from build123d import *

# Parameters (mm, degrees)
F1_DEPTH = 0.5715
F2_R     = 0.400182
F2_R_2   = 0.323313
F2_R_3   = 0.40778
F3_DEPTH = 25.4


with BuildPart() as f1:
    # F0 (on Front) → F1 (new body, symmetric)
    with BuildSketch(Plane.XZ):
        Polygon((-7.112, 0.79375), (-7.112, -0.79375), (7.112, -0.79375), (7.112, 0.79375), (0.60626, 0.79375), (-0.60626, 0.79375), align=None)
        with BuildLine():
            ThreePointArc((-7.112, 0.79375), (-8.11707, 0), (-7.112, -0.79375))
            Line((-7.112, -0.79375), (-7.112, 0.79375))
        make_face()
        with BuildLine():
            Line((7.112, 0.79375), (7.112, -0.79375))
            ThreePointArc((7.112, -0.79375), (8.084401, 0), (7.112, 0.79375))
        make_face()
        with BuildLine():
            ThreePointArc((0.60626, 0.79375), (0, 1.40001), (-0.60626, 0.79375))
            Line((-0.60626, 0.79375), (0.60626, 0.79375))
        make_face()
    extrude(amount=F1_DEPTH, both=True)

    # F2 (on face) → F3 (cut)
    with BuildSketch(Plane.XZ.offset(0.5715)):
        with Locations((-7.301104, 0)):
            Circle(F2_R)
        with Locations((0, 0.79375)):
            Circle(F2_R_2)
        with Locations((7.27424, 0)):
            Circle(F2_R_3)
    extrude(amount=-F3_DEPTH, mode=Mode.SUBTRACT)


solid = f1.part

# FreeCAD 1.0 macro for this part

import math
import FreeCAD as App
import Part
import Sketcher

V = App.Vector
Q = App.Units.Quantity

doc = App.newDocument("Part")
body = doc.addObject("PartDesign::Body", "Body")

sketch1 = body.newObject("Sketcher::SketchObject", "Sketch")
sketch1.AttachmentSupport = (doc.getObject("XZ_Plane"), [""])
sketch1.MapMode = "FlatFace"
sketch1.addGeometry([
    Part.LineSegment(V(-7.1, -0.8, 0), V(7.1, -0.8, 0)),
    Part.ArcOfCircle(Part.Circle(V(7.3, 0, 0), V(0, 0, 1), 0.8), math.radians(-102), math.radians(102)),
    Part.LineSegment(V(7.1, 0.8, 0), V(0.6, 0.8, 0)),
    Part.ArcOfCircle(Part.Circle(V(0, 0.8, 0), V(0, 0, 1), 0.6), math.radians(0), math.radians(180)),
    Part.LineSegment(V(-0.6, 0.8, 0), V(-7.1, 0.8, 0)),
    Part.ArcOfCircle(Part.Circle(V(-7.3, 0, 0), V(0, 0, 1), 0.8), math.radians(77), math.radians(283)),
], False)
sketch1.addConstraint([
    Sketcher.Constraint("Coincident", 0, 2, 1, 1),
    Sketcher.Constraint("Coincident", 1, 2, 2, 1),
    Sketcher.Constraint("Coincident", 2, 2, 3, 1),
    Sketcher.Constraint("Coincident", 3, 2, 4, 1),
    Sketcher.Constraint("Coincident", 4, 2, 5, 1),
    Sketcher.Constraint("Coincident", 5, 2, 0, 1),
    Sketcher.Constraint("Horizontal", 0),
    Sketcher.Constraint("Horizontal", 2),
    Sketcher.Constraint("Horizontal", 4),
    Sketcher.Constraint("Symmetric", 0, 2, 4, 2, -1, 1),
    Sketcher.Constraint("Symmetric", 1, 2, 5, 2, -1, 1),
    Sketcher.Constraint("PointOnObject", 1, 3, -1),
    Sketcher.Constraint("PointOnObject", 3, 3, -2),
    Sketcher.Constraint("Horizontal", 3, 3, 1, 2),
    Sketcher.Constraint("DistanceX", 0, 1, 0, 2, Q("0.56 in")),
    Sketcher.Constraint("DistanceY", -1, 1, 3, 3, Q("0.03125 in")),
    Sketcher.Constraint("Radius", 1, Q("0.810161 mm")),
    Sketcher.Constraint("Radius", 3, Q("0.60626 mm")),
    Sketcher.Constraint("Radius", 5, Q("0.815965 mm")),
])
pad1 = body.newObject("PartDesign::Pad", "Pad")
pad1.Profile = sketch1
pad1.Length = Q("0.045 in")
pad1.Midplane = True

sketch2 = body.newObject("Sketcher::SketchObject", "Sketch001")
sketch2.AttachmentSupport = (doc.getObject("XZ_Plane"), [""])
sketch2.MapMode = "FlatFace"
sketch2.AttachmentOffset = App.Placement(V(0, 0, 0.0225 * 25.4), App.Rotation())
sketch2.addGeometry([
    Part.Circle(V(-7.3, 0, 0), V(0, 0, 1), 0.4),
    Part.Circle(V(0, 0.79, 0), V(0, 0, 1), 0.32),
    Part.Circle(V(7.27, 0, 0), V(0, 0, 1), 0.41),
], False)
sketch2.addConstraint([
    Sketcher.Constraint("PointOnObject", 0, 3, -1),
    Sketcher.Constraint("PointOnObject", 1, 3, -2),
    Sketcher.Constraint("PointOnObject", 2, 3, -1),
    Sketcher.Constraint("Diameter", 2, Q("0.81556 mm")),
    Sketcher.Constraint("DistanceY", -1, 1, 1, 3, Q("0.03125 in")),
    Sketcher.Constraint("Diameter", 0, Q("0.800364 mm")),
    Sketcher.Constraint("Diameter", 1, Q("0.646626 mm")),
    Sketcher.Constraint("DistanceX", -1, 1, 2, 3, Q("7.27424 mm")),
    Sketcher.Constraint("DistanceX", 0, 3, -1, 1, Q("7.301104 mm")),
])
pocket1 = body.newObject("PartDesign::Pocket", "Pocket")
pocket1.Profile = sketch2
pocket1.Length = Q("1 in")

doc.recompute()
